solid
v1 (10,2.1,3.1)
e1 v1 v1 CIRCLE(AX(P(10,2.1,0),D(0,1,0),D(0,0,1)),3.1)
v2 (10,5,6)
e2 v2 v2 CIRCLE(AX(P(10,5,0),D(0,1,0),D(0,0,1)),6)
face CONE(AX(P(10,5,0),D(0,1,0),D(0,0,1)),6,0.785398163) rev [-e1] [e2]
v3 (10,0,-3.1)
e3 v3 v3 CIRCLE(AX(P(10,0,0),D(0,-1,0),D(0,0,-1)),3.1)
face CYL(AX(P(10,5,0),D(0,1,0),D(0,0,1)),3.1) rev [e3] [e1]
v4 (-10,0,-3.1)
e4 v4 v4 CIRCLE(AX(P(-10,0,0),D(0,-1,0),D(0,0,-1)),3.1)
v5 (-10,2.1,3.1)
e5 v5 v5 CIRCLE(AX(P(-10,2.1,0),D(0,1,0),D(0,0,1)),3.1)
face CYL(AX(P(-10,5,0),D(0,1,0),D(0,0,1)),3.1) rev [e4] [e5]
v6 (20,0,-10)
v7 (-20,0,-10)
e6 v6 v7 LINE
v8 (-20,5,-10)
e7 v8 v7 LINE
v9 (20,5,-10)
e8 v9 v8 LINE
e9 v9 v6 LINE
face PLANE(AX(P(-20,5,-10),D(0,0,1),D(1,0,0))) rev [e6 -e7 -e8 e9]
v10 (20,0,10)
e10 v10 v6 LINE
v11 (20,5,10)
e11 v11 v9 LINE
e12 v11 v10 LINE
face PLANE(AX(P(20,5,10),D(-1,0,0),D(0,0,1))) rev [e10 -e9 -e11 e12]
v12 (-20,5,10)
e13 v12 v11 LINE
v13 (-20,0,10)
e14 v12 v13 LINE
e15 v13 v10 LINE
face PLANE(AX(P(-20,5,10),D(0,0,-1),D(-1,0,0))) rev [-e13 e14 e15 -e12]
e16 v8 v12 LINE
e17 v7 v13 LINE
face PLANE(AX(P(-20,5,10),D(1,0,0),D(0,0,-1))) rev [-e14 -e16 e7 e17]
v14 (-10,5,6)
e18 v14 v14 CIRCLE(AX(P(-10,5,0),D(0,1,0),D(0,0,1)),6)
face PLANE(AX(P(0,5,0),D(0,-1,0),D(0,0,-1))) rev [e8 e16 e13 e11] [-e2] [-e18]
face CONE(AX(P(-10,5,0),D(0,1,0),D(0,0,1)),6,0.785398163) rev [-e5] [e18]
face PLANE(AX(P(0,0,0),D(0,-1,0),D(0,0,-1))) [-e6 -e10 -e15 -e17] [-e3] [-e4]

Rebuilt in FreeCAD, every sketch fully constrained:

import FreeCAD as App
import Part
import Sketcher
Q = App.Units.Quantity

doc = App.newDocument("Part")
params = doc.addObject("Spreadsheet::Sheet", "Params")
for row, (alias, value) in enumerate([
    ("sketch1_width", "40 mm"),
    ("sketch1_height", "20 mm"),
    ("pad1_length", "5 mm"),
    ("sketch2_width", "5 mm"),
    ("sketch2_height", "6 mm"),
    ("sketch2_width2", "2.1 mm"),
    ("groove_angle", "360 deg"),
    ("linearpattern_pitch", "20 mm"),
], start=1):
    params.set(f"A{row}", alias)
    params.set(f"B{row}", "=" + value)
    params.setAlias(f"B{row}", alias)

body = doc.addObject("PartDesign::Body", "Body")

sketch1 = body.newObject("Sketcher::SketchObject", "Sketch")
sketch1.AttachmentSupport = (doc.getObject("XZ_Plane"), [""])
sketch1.MapMode = "FlatFace"
sketch1.addGeometry([
    Part.LineSegment(App.Vector(-20, -10, 0), App.Vector(-20, 10, 0)),
    Part.LineSegment(App.Vector(-20, 10, 0), App.Vector(20, 10, 0)),
    Part.LineSegment(App.Vector(20, 10, 0), App.Vector(20, -10, 0)),
    Part.LineSegment(App.Vector(20, -10, 0), App.Vector(-20, -10, 0)),
], False)
sketch1.addConstraint([
    Sketcher.Constraint("Coincident", 0, 2, 1, 1),
    Sketcher.Constraint("Coincident", 1, 2, 2, 1),
    Sketcher.Constraint("Coincident", 2, 2, 3, 1),
    Sketcher.Constraint("Coincident", 3, 2, 0, 1),
    Sketcher.Constraint("Vertical", 0),
    Sketcher.Constraint("Horizontal", 1),
    Sketcher.Constraint("Vertical", 2),
    Sketcher.Constraint("Horizontal", 3),
    Sketcher.Constraint("Symmetric", 0, 2, 2, 2, -1, 1),
    Sketcher.Constraint("DistanceX", 1, 1, 1, 2, 40.0),
    Sketcher.Constraint("DistanceY", 0, 1, 0, 2, 20.0),
])
sketch1.setExpression("Constraints[9]", "Params.sketch1_width")
sketch1.setExpression("Constraints[10]", "Params.sketch1_height")
pad1 = body.newObject("PartDesign::Pad", "Pad")
pad1.Profile = sketch1
pad1.setExpression("Length", "Params.pad1_length")
pad1.Reversed = True

sketch2 = body.newObject("Sketcher::SketchObject", "Sketch001")
sketch2.AttachmentSupport = (doc.getObject("YZ_Plane"), [""])
sketch2.MapMode = "FlatFace"
sketch2.AttachmentOffset = App.Placement(App.Vector(0, 0, -10), App.Rotation())
sketch2.addGeometry([
    Part.LineSegment(App.Vector(0, 0, 0), App.Vector(5, 0, 0)),
    Part.LineSegment(App.Vector(5, 0, 0), App.Vector(5, 6, 0)),
    Part.LineSegment(App.Vector(5, 6, 0), App.Vector(2.1, 3.1, 0)),
    Part.LineSegment(App.Vector(2.1, 3.1, 0), App.Vector(0, 3.1, 0)),
    Part.LineSegment(App.Vector(0, 3.1, 0), App.Vector(0, 0, 0)),
], False)
sketch2.addConstraint([
    Sketcher.Constraint("Coincident", 0, 2, 1, 1),
    Sketcher.Constraint("Coincident", 1, 2, 2, 1),
    Sketcher.Constraint("Coincident", 2, 2, 3, 1),
    Sketcher.Constraint("Coincident", 3, 2, 4, 1),
    Sketcher.Constraint("Coincident", 4, 2, 0, 1),
    Sketcher.Constraint("Horizontal", 0),
    Sketcher.Constraint("Vertical", 1),
    Sketcher.Constraint("Horizontal", 3),
    Sketcher.Constraint("Vertical", 4),
    Sketcher.Constraint("Coincident", 4, 2, -1, 1),
    Sketcher.Constraint("DistanceX", 0, 1, 0, 2, 5.0),
    Sketcher.Constraint("DistanceY", 1, 1, 1, 2, 6.0),
    Sketcher.Constraint("Angle", 2, Q("-135 deg")),
    Sketcher.Constraint("DistanceX", 3, 2, 3, 1, 2.1),
])
sketch2.setExpression("Constraints[10]", "Params.sketch2_width")
sketch2.setExpression("Constraints[11]", "Params.sketch2_height")
sketch2.setExpression("Constraints[13]", "Params.sketch2_width2")
groove = body.newObject("PartDesign::Groove", "Groove")
groove.Profile = sketch2
groove.ReferenceAxis = (sketch2, ["H_Axis"])
groove.setExpression("Angle", "Params.groove_angle")
doc.recompute()

linearpattern = body.newObject("PartDesign::LinearPattern", "LinearPattern")
linearpattern.Originals = [groove]
linearpattern.Direction = (doc.getObject("X_Axis"), [""])
linearpattern.Mode = "offset"
linearpattern.setExpression("Offset", "Params.linearpattern_pitch")
linearpattern.Occurrences = 2
body.Tip = linearpattern

doc.recompute()
